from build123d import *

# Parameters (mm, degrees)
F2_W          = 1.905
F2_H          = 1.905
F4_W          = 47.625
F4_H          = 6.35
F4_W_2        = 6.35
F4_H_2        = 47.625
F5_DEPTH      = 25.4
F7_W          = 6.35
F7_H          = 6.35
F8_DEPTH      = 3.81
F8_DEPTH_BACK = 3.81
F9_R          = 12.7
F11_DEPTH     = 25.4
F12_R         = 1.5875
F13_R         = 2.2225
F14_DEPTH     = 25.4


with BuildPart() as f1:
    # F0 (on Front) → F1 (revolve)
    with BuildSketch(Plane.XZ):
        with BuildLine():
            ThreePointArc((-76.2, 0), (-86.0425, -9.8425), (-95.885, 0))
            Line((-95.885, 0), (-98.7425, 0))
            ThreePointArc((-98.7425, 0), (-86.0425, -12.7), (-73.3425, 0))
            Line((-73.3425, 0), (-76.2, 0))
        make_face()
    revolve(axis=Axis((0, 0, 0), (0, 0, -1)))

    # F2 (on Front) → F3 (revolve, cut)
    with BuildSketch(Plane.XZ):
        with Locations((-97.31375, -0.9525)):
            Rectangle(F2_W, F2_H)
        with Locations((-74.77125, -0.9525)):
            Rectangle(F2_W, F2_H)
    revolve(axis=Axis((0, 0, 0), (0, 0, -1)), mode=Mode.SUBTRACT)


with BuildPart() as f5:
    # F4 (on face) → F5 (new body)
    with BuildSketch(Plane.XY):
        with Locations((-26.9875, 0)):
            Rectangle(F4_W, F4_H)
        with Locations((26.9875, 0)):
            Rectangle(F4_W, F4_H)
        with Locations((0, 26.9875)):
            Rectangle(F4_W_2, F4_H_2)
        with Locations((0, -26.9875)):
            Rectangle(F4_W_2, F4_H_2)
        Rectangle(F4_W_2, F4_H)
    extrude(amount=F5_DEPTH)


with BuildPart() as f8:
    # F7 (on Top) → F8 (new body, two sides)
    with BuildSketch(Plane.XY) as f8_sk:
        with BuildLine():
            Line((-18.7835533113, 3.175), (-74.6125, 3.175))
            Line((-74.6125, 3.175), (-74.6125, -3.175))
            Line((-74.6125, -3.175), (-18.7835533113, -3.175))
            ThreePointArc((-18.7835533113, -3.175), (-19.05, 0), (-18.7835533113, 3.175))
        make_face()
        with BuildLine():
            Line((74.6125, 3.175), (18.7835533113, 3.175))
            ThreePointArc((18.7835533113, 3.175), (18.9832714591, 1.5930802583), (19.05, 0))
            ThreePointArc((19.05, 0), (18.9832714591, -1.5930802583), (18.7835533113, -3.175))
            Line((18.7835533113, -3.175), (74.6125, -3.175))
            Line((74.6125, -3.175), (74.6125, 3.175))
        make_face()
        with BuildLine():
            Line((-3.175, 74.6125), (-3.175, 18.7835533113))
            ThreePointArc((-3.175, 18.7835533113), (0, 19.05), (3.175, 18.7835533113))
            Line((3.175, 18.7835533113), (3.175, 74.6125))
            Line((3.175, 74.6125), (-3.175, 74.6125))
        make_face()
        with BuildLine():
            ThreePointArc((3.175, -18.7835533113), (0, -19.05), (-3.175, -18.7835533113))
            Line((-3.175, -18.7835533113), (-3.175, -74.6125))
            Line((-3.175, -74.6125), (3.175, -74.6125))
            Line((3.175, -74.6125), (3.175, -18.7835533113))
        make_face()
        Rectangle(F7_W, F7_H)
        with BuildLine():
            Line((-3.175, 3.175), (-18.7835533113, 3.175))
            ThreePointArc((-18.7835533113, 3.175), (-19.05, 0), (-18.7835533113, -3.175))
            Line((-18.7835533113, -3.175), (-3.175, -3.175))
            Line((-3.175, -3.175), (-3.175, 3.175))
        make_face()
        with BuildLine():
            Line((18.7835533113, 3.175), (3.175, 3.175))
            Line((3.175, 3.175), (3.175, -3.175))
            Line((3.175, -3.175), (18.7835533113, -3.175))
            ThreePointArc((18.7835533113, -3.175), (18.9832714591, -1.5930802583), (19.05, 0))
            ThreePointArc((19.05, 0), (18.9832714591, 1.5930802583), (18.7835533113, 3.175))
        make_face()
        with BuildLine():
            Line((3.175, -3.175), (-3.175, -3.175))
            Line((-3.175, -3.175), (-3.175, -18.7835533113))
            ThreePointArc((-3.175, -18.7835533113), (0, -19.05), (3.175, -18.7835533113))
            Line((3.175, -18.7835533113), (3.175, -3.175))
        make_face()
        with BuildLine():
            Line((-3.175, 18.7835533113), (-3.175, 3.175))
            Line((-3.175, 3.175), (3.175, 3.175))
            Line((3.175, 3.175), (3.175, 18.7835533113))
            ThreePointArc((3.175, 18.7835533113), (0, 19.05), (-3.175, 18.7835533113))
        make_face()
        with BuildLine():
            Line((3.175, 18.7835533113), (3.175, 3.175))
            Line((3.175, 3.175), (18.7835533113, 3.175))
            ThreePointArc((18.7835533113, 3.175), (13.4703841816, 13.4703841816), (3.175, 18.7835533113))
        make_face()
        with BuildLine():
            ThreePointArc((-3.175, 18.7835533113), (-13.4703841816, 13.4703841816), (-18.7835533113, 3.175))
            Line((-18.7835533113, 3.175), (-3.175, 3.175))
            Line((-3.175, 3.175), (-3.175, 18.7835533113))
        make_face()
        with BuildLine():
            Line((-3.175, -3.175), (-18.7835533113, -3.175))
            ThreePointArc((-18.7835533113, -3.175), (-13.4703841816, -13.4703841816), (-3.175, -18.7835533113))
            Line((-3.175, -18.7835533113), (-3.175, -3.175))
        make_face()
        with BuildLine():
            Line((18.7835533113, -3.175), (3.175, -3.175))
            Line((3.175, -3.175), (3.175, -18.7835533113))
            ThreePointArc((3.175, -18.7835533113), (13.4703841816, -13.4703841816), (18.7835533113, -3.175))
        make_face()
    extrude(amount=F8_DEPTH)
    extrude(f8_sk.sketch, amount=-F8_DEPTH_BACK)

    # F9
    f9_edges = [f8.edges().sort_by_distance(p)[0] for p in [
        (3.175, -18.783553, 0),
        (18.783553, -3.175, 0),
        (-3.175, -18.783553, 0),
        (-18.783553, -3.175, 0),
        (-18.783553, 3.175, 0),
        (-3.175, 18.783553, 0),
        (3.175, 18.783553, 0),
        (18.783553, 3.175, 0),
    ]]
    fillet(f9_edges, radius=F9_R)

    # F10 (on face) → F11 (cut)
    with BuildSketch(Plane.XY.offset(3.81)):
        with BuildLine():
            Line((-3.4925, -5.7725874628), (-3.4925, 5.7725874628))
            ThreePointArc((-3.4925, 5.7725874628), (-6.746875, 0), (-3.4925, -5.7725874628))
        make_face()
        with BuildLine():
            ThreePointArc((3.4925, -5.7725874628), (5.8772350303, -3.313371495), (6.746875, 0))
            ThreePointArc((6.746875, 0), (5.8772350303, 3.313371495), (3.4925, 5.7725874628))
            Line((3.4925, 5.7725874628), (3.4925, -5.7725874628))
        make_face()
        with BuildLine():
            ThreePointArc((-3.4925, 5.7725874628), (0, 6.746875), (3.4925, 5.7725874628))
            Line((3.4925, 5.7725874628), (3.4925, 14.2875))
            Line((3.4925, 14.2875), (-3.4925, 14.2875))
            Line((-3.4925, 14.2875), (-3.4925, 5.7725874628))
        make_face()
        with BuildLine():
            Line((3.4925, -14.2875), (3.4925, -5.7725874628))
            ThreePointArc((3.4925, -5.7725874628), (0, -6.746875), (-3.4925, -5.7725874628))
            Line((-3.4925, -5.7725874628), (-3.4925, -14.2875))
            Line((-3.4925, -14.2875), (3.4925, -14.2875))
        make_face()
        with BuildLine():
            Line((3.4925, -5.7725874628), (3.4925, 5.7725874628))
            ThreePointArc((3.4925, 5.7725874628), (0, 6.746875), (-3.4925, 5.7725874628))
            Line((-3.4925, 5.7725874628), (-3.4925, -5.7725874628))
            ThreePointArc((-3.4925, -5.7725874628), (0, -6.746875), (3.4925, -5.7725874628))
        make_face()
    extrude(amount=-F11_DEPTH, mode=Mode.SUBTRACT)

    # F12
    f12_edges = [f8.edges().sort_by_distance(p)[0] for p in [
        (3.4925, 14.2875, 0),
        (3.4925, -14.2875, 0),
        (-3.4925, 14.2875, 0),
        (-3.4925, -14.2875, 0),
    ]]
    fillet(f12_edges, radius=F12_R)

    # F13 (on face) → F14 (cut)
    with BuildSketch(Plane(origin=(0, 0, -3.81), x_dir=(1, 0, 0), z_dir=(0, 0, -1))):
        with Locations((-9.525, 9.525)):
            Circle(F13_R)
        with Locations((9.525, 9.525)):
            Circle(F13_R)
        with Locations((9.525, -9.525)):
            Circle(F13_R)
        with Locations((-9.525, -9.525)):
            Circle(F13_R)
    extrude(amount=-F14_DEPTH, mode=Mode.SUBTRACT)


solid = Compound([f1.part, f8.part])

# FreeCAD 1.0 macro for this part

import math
import FreeCAD as App
import Part
import Sketcher
Q = App.Units.Quantity


def edges_at(feature, points):
    """Names of the edges that pass closest to the given points."""
    edges = feature.Shape.Edges
    near = lambda p: min(range(len(edges)), key=lambda i: edges[i].distToShape(Part.Vertex(*p))[0])
    return sorted({f"Edge{near(p) + 1}" for p in points})


def add_polygon(sketch, points):
    """Adds a closed chain of lines whose ends are joined by coincident constraints."""
    first, n = sketch.GeometryCount, len(points)
    for a, b in zip(points, points[1:] + points[:1]):
        sketch.addGeometry(Part.LineSegment(App.Vector(*a, 0), App.Vector(*b, 0)), False)
    for i in range(n):
        sketch.addConstraint(Sketcher.Constraint("Coincident", first + i, 2, first + (i + 1) % n, 1))

doc = App.newDocument("Part")
body = doc.addObject("PartDesign::Body", "Body")

# Sketch on XZ plane
sketch1 = body.newObject("Sketcher::SketchObject", "Sketch")
sketch1.AttachmentSupport = (doc.getObject("XZ_Plane"), [""])
sketch1.MapMode = "FlatFace"
sketch1.addGeometry(Part.ArcOfCircle(Part.Circle(App.Vector(-86.0425, 0, 0), App.Vector(0, 0, 1), 9.8425), math.radians(180), math.radians(360)), False)
sketch1.addGeometry(Part.LineSegment(App.Vector(-95.885, 0, 0), App.Vector(-98.7425, 0, 0)), False)
sketch1.addGeometry(Part.ArcOfCircle(Part.Circle(App.Vector(-86.0425, 0, 0), App.Vector(0, 0, 1), 12.7), math.radians(180), math.radians(360)), False)
sketch1.addGeometry(Part.LineSegment(App.Vector(-73.3425, 0, 0), App.Vector(-76.2, 0, 0)), False)
sketch1.addConstraint(Sketcher.Constraint("Coincident", 0, 1, 1, 1))
sketch1.addConstraint(Sketcher.Constraint("Coincident", 1, 2, 2, 1))
sketch1.addConstraint(Sketcher.Constraint("Coincident", 2, 2, 3, 1))
sketch1.addConstraint(Sketcher.Constraint("Coincident", 3, 2, 0, 2))
sketch1.addConstraint(Sketcher.Constraint("Horizontal", 1))
sketch1.addConstraint(Sketcher.Constraint("Horizontal", 3))
sketch1.addConstraint(Sketcher.Constraint("Coincident", 2, 3, 0, 3))
sketch1.addConstraint(Sketcher.Constraint("PointOnObject", 0, 3, -1))
sketch1.addConstraint(Sketcher.Constraint("PointOnObject", 0, 1, -1))
sketch1.addConstraint(Sketcher.Constraint("PointOnObject", 2, 2, -1))
sketch1.addConstraint(Sketcher.Constraint("Radius", 2, Q("0.5 in")))
sketch1.addConstraint(Sketcher.Constraint("DistanceX", 3, 2, -1, 1, Q("3 in")))
sketch1.addConstraint(Sketcher.Constraint("Radius", 0, Q("0.3875 in")))
revolution = body.newObject("PartDesign::Revolution", "Revolution")
revolution.Profile = sketch1
revolution.ReferenceAxis = (sketch1, ["V_Axis"])
revolution.Angle = 360

# Sketch on XZ plane
sketch2 = body.newObject("Sketcher::SketchObject", "Sketch001")
sketch2.AttachmentSupport = (doc.getObject("XZ_Plane"), [""])
sketch2.MapMode = "FlatFace"
add_polygon(sketch2, [(-98.26625, 0), (-98.26625, -1.905), (-96.36125, -1.905), (-96.36125, 0)])  # lines 0-3
add_polygon(sketch2, [(-75.72375, 0), (-75.72375, -1.905), (-73.81875, -1.905), (-73.81875, 0)])  # lines 4-7
sketch2.addConstraint(Sketcher.Constraint("Vertical", 0))
sketch2.addConstraint(Sketcher.Constraint("Horizontal", 1))
sketch2.addConstraint(Sketcher.Constraint("Vertical", 2))
sketch2.addConstraint(Sketcher.Constraint("Horizontal", 3))
sketch2.addConstraint(Sketcher.Constraint("Vertical", 4))
sketch2.addConstraint(Sketcher.Constraint("Horizontal", 5))
sketch2.addConstraint(Sketcher.Constraint("Vertical", 6))
sketch2.addConstraint(Sketcher.Constraint("Horizontal", 7))
sketch2.addConstraint(Sketcher.Constraint("PointOnObject", 2, 2, -1))
sketch2.addConstraint(Sketcher.Constraint("PointOnObject", 6, 2, -1))
sketch2.addConstraint(Sketcher.Constraint("Horizontal", 1, 2, 4, 2))
sketch2.addConstraint(Sketcher.Constraint("Equal", 3, 5))
sketch2.addConstraint(Sketcher.Constraint("Equal", 7, 0))
sketch2.addConstraint(Sketcher.Constraint("DistanceX", 1, 1, 1, 2, Q("0.075 in")))
sketch2.addConstraint(Sketcher.Constraint("DistanceX", 5, 2, -1, 1, Q("2.90625 in")))
sketch2.addConstraint(Sketcher.Constraint("DistanceX", 1, 2, 4, 2, Q("0.8125 in")))
groove = body.newObject("PartDesign::Groove", "Groove")
groove.Profile = sketch2
groove.ReferenceAxis = (sketch2, ["V_Axis"])
groove.Angle = 360
body2 = doc.addObject("PartDesign::Body", "Body001")

# Sketch on XY plane
sketch3 = body2.newObject("Sketcher::SketchObject", "Sketch002")
sketch3.AttachmentSupport = (doc.getObject("XY_Plane001"), [""])
sketch3.MapMode = "FlatFace"
add_polygon(sketch3, [(-50.8, 3.175), (-50.8, -3.175), (-3.175, -3.175), (-3.175, -50.8), (3.175, -50.8), (3.175, -3.175), (50.8, -3.175), (50.8, 3.175), (3.175, 3.175), (3.175, 50.8), (-3.175, 50.8), (-3.175, 3.175)])  # lines 0-11
sketch3.addConstraint(Sketcher.Constraint("Vertical", 0))
sketch3.addConstraint(Sketcher.Constraint("Horizontal", 1))
sketch3.addConstraint(Sketcher.Constraint("Vertical", 2))
sketch3.addConstraint(Sketcher.Constraint("Horizontal", 3))
sketch3.addConstraint(Sketcher.Constraint("Vertical", 4))
sketch3.addConstraint(Sketcher.Constraint("Horizontal", 5))
sketch3.addConstraint(Sketcher.Constraint("Vertical", 6))
sketch3.addConstraint(Sketcher.Constraint("Horizontal", 7))
sketch3.addConstraint(Sketcher.Constraint("Vertical", 8))
sketch3.addConstraint(Sketcher.Constraint("Horizontal", 9))
sketch3.addConstraint(Sketcher.Constraint("Vertical", 10))
sketch3.addConstraint(Sketcher.Constraint("Horizontal", 11))
sketch3.addConstraint(Sketcher.Constraint("Symmetric", 0, 2, 6, 2, -1, 1))
sketch3.addConstraint(Sketcher.Constraint("Symmetric", 2, 2, 8, 2, -1, 1))
sketch3.addConstraint(Sketcher.Constraint("Symmetric", 4, 2, 10, 2, -1, 1))
sketch3.addConstraint(Sketcher.Constraint("Symmetric", 1, 2, 4, 2, -2))
sketch3.addConstraint(Sketcher.Constraint("Equal", 9, 0))
sketch3.addConstraint(Sketcher.Constraint("Equal", 11, 2))
sketch3.addConstraint(Sketcher.Constraint("DistanceX", 0, 2, -1, 1, Q("2 in")))
sketch3.addConstraint(Sketcher.Constraint("DistanceX", 3, 1, 3, 2, Q("0.25 in")))
pad1 = body2.newObject("PartDesign::Pad", "Pad")
pad1.Profile = sketch3
pad1.Length = Q("1 in")
body3 = doc.addObject("PartDesign::Body", "Body002")

# Sketch on XY plane
sketch4 = body3.newObject("Sketcher::SketchObject", "Sketch003")
sketch4.AttachmentSupport = (doc.getObject("XY_Plane002"), [""])
sketch4.MapMode = "FlatFace"
sketch4.addGeometry(Part.LineSegment(App.Vector(-74.6125, 3.175, 0), App.Vector(-74.6125, -3.175, 0)), False)
sketch4.addGeometry(Part.LineSegment(App.Vector(-74.6125, -3.175, 0), App.Vector(-18.783553, -3.175, 0)), False)
sketch4.addGeometry(Part.ArcOfCircle(Part.Circle(App.Vector(0, 0, 0), App.Vector(0, 0, 1), 19.05), math.radians(-170.405932), math.radians(-99.594068)), False)
sketch4.addGeometry(Part.LineSegment(App.Vector(-3.175, -18.783553, 0), App.Vector(-3.175, -74.6125, 0)), False)
sketch4.addGeometry(Part.LineSegment(App.Vector(-3.175, -74.6125, 0), App.Vector(3.175, -74.6125, 0)), False)
sketch4.addGeometry(Part.LineSegment(App.Vector(3.175, -74.6125, 0), App.Vector(3.175, -18.783553, 0)), False)
sketch4.addGeometry(Part.ArcOfCircle(Part.Circle(App.Vector(0, 0, 0), App.Vector(0, 0, 1), 19.05), math.radians(-80.405932), math.radians(-9.594068)), False)
sketch4.addGeometry(Part.LineSegment(App.Vector(18.783553, -3.175, 0), App.Vector(74.6125, -3.175, 0)), False)
sketch4.addGeometry(Part.LineSegment(App.Vector(74.6125, -3.175, 0), App.Vector(74.6125, 3.175, 0)), False)
sketch4.addGeometry(Part.LineSegment(App.Vector(74.6125, 3.175, 0), App.Vector(18.783553, 3.175, 0)), False)
sketch4.addGeometry(Part.ArcOfCircle(Part.Circle(App.Vector(0, 0, 0), App.Vector(0, 0, 1), 19.05), math.radians(9.594068), math.radians(80.405932)), False)
sketch4.addGeometry(Part.LineSegment(App.Vector(3.175, 18.783553, 0), App.Vector(3.175, 74.6125, 0)), False)
sketch4.addGeometry(Part.LineSegment(App.Vector(3.175, 74.6125, 0), App.Vector(-3.175, 74.6125, 0)), False)
sketch4.addGeometry(Part.LineSegment(App.Vector(-3.175, 74.6125, 0), App.Vector(-3.175, 18.783553, 0)), False)
sketch4.addGeometry(Part.ArcOfCircle(Part.Circle(App.Vector(0, 0, 0), App.Vector(0, 0, 1), 19.05), math.radians(99.594068), math.radians(170.405932)), False)
sketch4.addGeometry(Part.LineSegment(App.Vector(-18.783553, 3.175, 0), App.Vector(-74.6125, 3.175, 0)), False)
sketch4.addConstraint(Sketcher.Constraint("Coincident", 0, 2, 1, 1))
sketch4.addConstraint(Sketcher.Constraint("Coincident", 1, 2, 2, 1))
sketch4.addConstraint(Sketcher.Constraint("Coincident", 2, 2, 3, 1))
sketch4.addConstraint(Sketcher.Constraint("Coincident", 3, 2, 4, 1))
sketch4.addConstraint(Sketcher.Constraint("Coincident", 4, 2, 5, 1))
sketch4.addConstraint(Sketcher.Constraint("Coincident", 5, 2, 6, 1))
sketch4.addConstraint(Sketcher.Constraint("Coincident", 6, 2, 7, 1))
sketch4.addConstraint(Sketcher.Constraint("Coincident", 7, 2, 8, 1))
sketch4.addConstraint(Sketcher.Constraint("Coincident", 8, 2, 9, 1))
sketch4.addConstraint(Sketcher.Constraint("Coincident", 9, 2, 10, 1))
sketch4.addConstraint(Sketcher.Constraint("Coincident", 10, 2, 11, 1))
sketch4.addConstraint(Sketcher.Constraint("Coincident", 11, 2, 12, 1))
sketch4.addConstraint(Sketcher.Constraint("Coincident", 12, 2, 13, 1))
sketch4.addConstraint(Sketcher.Constraint("Coincident", 13, 2, 14, 1))
sketch4.addConstraint(Sketcher.Constraint("Coincident", 14, 2, 15, 1))
sketch4.addConstraint(Sketcher.Constraint("Coincident", 15, 2, 0, 1))
sketch4.addConstraint(Sketcher.Constraint("Vertical", 0))
sketch4.addConstraint(Sketcher.Constraint("Horizontal", 1))
sketch4.addConstraint(Sketcher.Constraint("Vertical", 3))
sketch4.addConstraint(Sketcher.Constraint("Horizontal", 4))
sketch4.addConstraint(Sketcher.Constraint("Vertical", 5))
sketch4.addConstraint(Sketcher.Constraint("Horizontal", 7))
sketch4.addConstraint(Sketcher.Constraint("Vertical", 8))
sketch4.addConstraint(Sketcher.Constraint("Horizontal", 9))
sketch4.addConstraint(Sketcher.Constraint("Vertical", 11))
sketch4.addConstraint(Sketcher.Constraint("Horizontal", 12))
sketch4.addConstraint(Sketcher.Constraint("Vertical", 13))
sketch4.addConstraint(Sketcher.Constraint("Horizontal", 15))
sketch4.addConstraint(Sketcher.Constraint("Coincident", 2, 3, -1, 1))
sketch4.addConstraint(Sketcher.Constraint("Coincident", 6, 3, -1, 1))
sketch4.addConstraint(Sketcher.Constraint("Coincident", 10, 3, -1, 1))
sketch4.addConstraint(Sketcher.Constraint("Coincident", 14, 3, -1, 1))
sketch4.addConstraint(Sketcher.Constraint("Equal", 2, 6))
sketch4.addConstraint(Sketcher.Constraint("Equal", 6, 10))
sketch4.addConstraint(Sketcher.Constraint("Equal", 10, 14))
sketch4.addConstraint(Sketcher.Constraint("Symmetric", 0, 2, 8, 2, -1, 1))
sketch4.addConstraint(Sketcher.Constraint("Symmetric", 3, 2, 11, 2, -1, 1))
sketch4.addConstraint(Sketcher.Constraint("Horizontal", 2, 2, 5, 2))
sketch4.addConstraint(Sketcher.Constraint("Horizontal", 1, 2, 6, 2))
sketch4.addConstraint(Sketcher.Constraint("Horizontal", 10, 2, 13, 2))
sketch4.addConstraint(Sketcher.Constraint("Horizontal", 9, 2, 14, 2))
sketch4.addConstraint(Sketcher.Constraint("Equal", 12, 0))
sketch4.addConstraint(Sketcher.Constraint("Equal", 15, 3))
sketch4.addConstraint(Sketcher.Constraint("Radius", 2, Q("0.75 in")))
sketch4.addConstraint(Sketcher.Constraint("DistanceX", 4, 1, 4, 2, Q("0.25 in")))
sketch4.addConstraint(Sketcher.Constraint("DistanceX", 0, 2, -1, 1, Q("2.9375 in")))
pad2 = body3.newObject("PartDesign::Pad", "Pad001")
pad2.Profile = sketch4
pad2.Type = "TwoLengths"
pad2.Length = Q("0.15 in")
pad2.Length2 = Q("0.15 in")
doc.recompute()

fillet = body3.newObject("PartDesign::Fillet", "Fillet")
fillet.Base = (pad2, edges_at(pad2, [
    (3.175, -18.784, 0),
    (18.784, -3.175, 0),
    (-3.175, -18.784, 0),
    (-18.784, -3.175, 0),
    (-18.784, 3.175, 0),
    (-3.175, 18.784, 0),
    (3.175, 18.784, 0),
    (18.784, 3.175, 0),
]))
fillet.Radius = Q("0.5 in")

# Sketch on XY plane
sketch5 = body3.newObject("Sketcher::SketchObject", "Sketch004")
sketch5.AttachmentSupport = (doc.getObject("XY_Plane002"), [""])
sketch5.MapMode = "FlatFace"
sketch5.AttachmentOffset = App.Placement(App.Vector(0, 0, 0.15 * 25.4), App.Rotation())
sketch5.addGeometry(Part.ArcOfCircle(Part.Circle(App.Vector(0, 0, 0), App.Vector(0, 0, 1), 6.746875), math.radians(121.174553), math.radians(238.825447)), False)
sketch5.addGeometry(Part.LineSegment(App.Vector(-3.4925, -5.772587, 0), App.Vector(-3.4925, -14.2875, 0)), False)
sketch5.addGeometry(Part.LineSegment(App.Vector(-3.4925, -14.2875, 0), App.Vector(3.4925, -14.2875, 0)), False)
sketch5.addGeometry(Part.LineSegment(App.Vector(3.4925, -14.2875, 0), App.Vector(3.4925, -5.772587, 0)), False)
sketch5.addGeometry(Part.ArcOfCircle(Part.Circle(App.Vector(0, 0, 0), App.Vector(0, 0, 1), 6.746875), math.radians(-58.825447), math.radians(0)), False)
sketch5.addGeometry(Part.ArcOfCircle(Part.Circle(App.Vector(0, 0, 0), App.Vector(0, 0, 1), 6.746875), math.radians(0), math.radians(58.825447)), False)
sketch5.addGeometry(Part.LineSegment(App.Vector(3.4925, 5.772587, 0), App.Vector(3.4925, 14.2875, 0)), False)
sketch5.addGeometry(Part.LineSegment(App.Vector(3.4925, 14.2875, 0), App.Vector(-3.4925, 14.2875, 0)), False)
sketch5.addGeometry(Part.LineSegment(App.Vector(-3.4925, 14.2875, 0), App.Vector(-3.4925, 5.772587, 0)), False)
sketch5.addConstraint(Sketcher.Constraint("Coincident", 0, 2, 1, 1))
sketch5.addConstraint(Sketcher.Constraint("Coincident", 1, 2, 2, 1))
sketch5.addConstraint(Sketcher.Constraint("Coincident", 2, 2, 3, 1))
sketch5.addConstraint(Sketcher.Constraint("Coincident", 3, 2, 4, 1))
sketch5.addConstraint(Sketcher.Constraint("Tangent", 4, 2, 5, 1))
sketch5.addConstraint(Sketcher.Constraint("Coincident", 5, 2, 6, 1))
sketch5.addConstraint(Sketcher.Constraint("Coincident", 6, 2, 7, 1))
sketch5.addConstraint(Sketcher.Constraint("Coincident", 7, 2, 8, 1))
sketch5.addConstraint(Sketcher.Constraint("Coincident", 8, 2, 0, 1))
sketch5.addConstraint(Sketcher.Constraint("Vertical", 1))
sketch5.addConstraint(Sketcher.Constraint("Horizontal", 2))
sketch5.addConstraint(Sketcher.Constraint("Vertical", 3))
sketch5.addConstraint(Sketcher.Constraint("Vertical", 6))
sketch5.addConstraint(Sketcher.Constraint("Horizontal", 7))
sketch5.addConstraint(Sketcher.Constraint("Vertical", 8))
sketch5.addConstraint(Sketcher.Constraint("Coincident", 0, 3, -1, 1))
sketch5.addConstraint(Sketcher.Constraint("Coincident", 4, 3, -1, 1))
sketch5.addConstraint(Sketcher.Constraint("Equal", 0, 4))
sketch5.addConstraint(Sketcher.Constraint("Equal", 4, 5))
sketch5.addConstraint(Sketcher.Constraint("Symmetric", 1, 2, 6, 2, -1, 1))
sketch5.addConstraint(Sketcher.Constraint("PointOnObject", 4, 2, -1))
sketch5.addConstraint(Sketcher.Constraint("Horizontal", 0, 2, 3, 2))
sketch5.addConstraint(Sketcher.Constraint("Horizontal", 5, 2, 8, 2))
sketch5.addConstraint(Sketcher.Constraint("Radius", 0, Q("0.265625 in")))
sketch5.addConstraint(Sketcher.Constraint("DistanceX", 2, 1, 2, 2, Q("0.275 in")))
sketch5.addConstraint(Sketcher.Constraint("DistanceY", 1, 2, -1, 1, Q("0.5625 in")))
pocket1 = body3.newObject("PartDesign::Pocket", "Pocket")
pocket1.Profile = sketch5
pocket1.Length = Q("1 in")
doc.recompute()

fillet2 = body3.newObject("PartDesign::Fillet", "Fillet001")
fillet2.Base = (pocket1, edges_at(pocket1, [
    (3.493, 14.287, 0),
    (3.493, -14.287, 0),
    (-3.493, 14.287, 0),
    (-3.493, -14.287, 0),
]))
fillet2.Radius = Q("0.0625 in")

# Sketch on XY plane
sketch6 = body3.newObject("Sketcher::SketchObject", "Sketch005")
sketch6.AttachmentSupport = (doc.getObject("XY_Plane002"), [""])
sketch6.MapMode = "FlatFace"
sketch6.AttachmentOffset = App.Placement(App.Vector(0, 0, -0.15 * 25.4), App.Rotation())
sketch6.addGeometry(Part.Circle(App.Vector(-9.525, -9.525, 0), App.Vector(0, 0, 1), 2.2225), False)
sketch6.addGeometry(Part.Circle(App.Vector(9.525, -9.525, 0), App.Vector(0, 0, 1), 2.2225), False)
sketch6.addGeometry(Part.Circle(App.Vector(9.525, 9.525, 0), App.Vector(0, 0, 1), 2.2225), False)
sketch6.addGeometry(Part.Circle(App.Vector(-9.525, 9.525, 0), App.Vector(0, 0, 1), 2.2225), False)
sketch6.addConstraint(Sketcher.Constraint("Equal", 0, 1))
sketch6.addConstraint(Sketcher.Constraint("Equal", 1, 2))
sketch6.addConstraint(Sketcher.Constraint("Equal", 2, 3))
sketch6.addConstraint(Sketcher.Constraint("Symmetric", 0, 3, 2, 3, -1, 1))
sketch6.addConstraint(Sketcher.Constraint("Symmetric", 1, 3, 3, 3, -1, 1))
sketch6.addConstraint(Sketcher.Constraint("Symmetric", 0, 3, 1, 3, -2))
sketch6.addConstraint(Sketcher.Constraint("Diameter", 0, Q("0.175 in")))
sketch6.addConstraint(Sketcher.Constraint("DistanceX", 0, 3, 1, 3, Q("0.75 in")))
sketch6.addConstraint(Sketcher.Constraint("DistanceY", 1, 3, 2, 3, Q("0.75 in")))
pocket2 = body3.newObject("PartDesign::Pocket", "Pocket001")
pocket2.Profile = sketch6
pocket2.Length = Q("1 in")
pocket2.Reversed = True
body2.Visibility = False

doc.recompute()
